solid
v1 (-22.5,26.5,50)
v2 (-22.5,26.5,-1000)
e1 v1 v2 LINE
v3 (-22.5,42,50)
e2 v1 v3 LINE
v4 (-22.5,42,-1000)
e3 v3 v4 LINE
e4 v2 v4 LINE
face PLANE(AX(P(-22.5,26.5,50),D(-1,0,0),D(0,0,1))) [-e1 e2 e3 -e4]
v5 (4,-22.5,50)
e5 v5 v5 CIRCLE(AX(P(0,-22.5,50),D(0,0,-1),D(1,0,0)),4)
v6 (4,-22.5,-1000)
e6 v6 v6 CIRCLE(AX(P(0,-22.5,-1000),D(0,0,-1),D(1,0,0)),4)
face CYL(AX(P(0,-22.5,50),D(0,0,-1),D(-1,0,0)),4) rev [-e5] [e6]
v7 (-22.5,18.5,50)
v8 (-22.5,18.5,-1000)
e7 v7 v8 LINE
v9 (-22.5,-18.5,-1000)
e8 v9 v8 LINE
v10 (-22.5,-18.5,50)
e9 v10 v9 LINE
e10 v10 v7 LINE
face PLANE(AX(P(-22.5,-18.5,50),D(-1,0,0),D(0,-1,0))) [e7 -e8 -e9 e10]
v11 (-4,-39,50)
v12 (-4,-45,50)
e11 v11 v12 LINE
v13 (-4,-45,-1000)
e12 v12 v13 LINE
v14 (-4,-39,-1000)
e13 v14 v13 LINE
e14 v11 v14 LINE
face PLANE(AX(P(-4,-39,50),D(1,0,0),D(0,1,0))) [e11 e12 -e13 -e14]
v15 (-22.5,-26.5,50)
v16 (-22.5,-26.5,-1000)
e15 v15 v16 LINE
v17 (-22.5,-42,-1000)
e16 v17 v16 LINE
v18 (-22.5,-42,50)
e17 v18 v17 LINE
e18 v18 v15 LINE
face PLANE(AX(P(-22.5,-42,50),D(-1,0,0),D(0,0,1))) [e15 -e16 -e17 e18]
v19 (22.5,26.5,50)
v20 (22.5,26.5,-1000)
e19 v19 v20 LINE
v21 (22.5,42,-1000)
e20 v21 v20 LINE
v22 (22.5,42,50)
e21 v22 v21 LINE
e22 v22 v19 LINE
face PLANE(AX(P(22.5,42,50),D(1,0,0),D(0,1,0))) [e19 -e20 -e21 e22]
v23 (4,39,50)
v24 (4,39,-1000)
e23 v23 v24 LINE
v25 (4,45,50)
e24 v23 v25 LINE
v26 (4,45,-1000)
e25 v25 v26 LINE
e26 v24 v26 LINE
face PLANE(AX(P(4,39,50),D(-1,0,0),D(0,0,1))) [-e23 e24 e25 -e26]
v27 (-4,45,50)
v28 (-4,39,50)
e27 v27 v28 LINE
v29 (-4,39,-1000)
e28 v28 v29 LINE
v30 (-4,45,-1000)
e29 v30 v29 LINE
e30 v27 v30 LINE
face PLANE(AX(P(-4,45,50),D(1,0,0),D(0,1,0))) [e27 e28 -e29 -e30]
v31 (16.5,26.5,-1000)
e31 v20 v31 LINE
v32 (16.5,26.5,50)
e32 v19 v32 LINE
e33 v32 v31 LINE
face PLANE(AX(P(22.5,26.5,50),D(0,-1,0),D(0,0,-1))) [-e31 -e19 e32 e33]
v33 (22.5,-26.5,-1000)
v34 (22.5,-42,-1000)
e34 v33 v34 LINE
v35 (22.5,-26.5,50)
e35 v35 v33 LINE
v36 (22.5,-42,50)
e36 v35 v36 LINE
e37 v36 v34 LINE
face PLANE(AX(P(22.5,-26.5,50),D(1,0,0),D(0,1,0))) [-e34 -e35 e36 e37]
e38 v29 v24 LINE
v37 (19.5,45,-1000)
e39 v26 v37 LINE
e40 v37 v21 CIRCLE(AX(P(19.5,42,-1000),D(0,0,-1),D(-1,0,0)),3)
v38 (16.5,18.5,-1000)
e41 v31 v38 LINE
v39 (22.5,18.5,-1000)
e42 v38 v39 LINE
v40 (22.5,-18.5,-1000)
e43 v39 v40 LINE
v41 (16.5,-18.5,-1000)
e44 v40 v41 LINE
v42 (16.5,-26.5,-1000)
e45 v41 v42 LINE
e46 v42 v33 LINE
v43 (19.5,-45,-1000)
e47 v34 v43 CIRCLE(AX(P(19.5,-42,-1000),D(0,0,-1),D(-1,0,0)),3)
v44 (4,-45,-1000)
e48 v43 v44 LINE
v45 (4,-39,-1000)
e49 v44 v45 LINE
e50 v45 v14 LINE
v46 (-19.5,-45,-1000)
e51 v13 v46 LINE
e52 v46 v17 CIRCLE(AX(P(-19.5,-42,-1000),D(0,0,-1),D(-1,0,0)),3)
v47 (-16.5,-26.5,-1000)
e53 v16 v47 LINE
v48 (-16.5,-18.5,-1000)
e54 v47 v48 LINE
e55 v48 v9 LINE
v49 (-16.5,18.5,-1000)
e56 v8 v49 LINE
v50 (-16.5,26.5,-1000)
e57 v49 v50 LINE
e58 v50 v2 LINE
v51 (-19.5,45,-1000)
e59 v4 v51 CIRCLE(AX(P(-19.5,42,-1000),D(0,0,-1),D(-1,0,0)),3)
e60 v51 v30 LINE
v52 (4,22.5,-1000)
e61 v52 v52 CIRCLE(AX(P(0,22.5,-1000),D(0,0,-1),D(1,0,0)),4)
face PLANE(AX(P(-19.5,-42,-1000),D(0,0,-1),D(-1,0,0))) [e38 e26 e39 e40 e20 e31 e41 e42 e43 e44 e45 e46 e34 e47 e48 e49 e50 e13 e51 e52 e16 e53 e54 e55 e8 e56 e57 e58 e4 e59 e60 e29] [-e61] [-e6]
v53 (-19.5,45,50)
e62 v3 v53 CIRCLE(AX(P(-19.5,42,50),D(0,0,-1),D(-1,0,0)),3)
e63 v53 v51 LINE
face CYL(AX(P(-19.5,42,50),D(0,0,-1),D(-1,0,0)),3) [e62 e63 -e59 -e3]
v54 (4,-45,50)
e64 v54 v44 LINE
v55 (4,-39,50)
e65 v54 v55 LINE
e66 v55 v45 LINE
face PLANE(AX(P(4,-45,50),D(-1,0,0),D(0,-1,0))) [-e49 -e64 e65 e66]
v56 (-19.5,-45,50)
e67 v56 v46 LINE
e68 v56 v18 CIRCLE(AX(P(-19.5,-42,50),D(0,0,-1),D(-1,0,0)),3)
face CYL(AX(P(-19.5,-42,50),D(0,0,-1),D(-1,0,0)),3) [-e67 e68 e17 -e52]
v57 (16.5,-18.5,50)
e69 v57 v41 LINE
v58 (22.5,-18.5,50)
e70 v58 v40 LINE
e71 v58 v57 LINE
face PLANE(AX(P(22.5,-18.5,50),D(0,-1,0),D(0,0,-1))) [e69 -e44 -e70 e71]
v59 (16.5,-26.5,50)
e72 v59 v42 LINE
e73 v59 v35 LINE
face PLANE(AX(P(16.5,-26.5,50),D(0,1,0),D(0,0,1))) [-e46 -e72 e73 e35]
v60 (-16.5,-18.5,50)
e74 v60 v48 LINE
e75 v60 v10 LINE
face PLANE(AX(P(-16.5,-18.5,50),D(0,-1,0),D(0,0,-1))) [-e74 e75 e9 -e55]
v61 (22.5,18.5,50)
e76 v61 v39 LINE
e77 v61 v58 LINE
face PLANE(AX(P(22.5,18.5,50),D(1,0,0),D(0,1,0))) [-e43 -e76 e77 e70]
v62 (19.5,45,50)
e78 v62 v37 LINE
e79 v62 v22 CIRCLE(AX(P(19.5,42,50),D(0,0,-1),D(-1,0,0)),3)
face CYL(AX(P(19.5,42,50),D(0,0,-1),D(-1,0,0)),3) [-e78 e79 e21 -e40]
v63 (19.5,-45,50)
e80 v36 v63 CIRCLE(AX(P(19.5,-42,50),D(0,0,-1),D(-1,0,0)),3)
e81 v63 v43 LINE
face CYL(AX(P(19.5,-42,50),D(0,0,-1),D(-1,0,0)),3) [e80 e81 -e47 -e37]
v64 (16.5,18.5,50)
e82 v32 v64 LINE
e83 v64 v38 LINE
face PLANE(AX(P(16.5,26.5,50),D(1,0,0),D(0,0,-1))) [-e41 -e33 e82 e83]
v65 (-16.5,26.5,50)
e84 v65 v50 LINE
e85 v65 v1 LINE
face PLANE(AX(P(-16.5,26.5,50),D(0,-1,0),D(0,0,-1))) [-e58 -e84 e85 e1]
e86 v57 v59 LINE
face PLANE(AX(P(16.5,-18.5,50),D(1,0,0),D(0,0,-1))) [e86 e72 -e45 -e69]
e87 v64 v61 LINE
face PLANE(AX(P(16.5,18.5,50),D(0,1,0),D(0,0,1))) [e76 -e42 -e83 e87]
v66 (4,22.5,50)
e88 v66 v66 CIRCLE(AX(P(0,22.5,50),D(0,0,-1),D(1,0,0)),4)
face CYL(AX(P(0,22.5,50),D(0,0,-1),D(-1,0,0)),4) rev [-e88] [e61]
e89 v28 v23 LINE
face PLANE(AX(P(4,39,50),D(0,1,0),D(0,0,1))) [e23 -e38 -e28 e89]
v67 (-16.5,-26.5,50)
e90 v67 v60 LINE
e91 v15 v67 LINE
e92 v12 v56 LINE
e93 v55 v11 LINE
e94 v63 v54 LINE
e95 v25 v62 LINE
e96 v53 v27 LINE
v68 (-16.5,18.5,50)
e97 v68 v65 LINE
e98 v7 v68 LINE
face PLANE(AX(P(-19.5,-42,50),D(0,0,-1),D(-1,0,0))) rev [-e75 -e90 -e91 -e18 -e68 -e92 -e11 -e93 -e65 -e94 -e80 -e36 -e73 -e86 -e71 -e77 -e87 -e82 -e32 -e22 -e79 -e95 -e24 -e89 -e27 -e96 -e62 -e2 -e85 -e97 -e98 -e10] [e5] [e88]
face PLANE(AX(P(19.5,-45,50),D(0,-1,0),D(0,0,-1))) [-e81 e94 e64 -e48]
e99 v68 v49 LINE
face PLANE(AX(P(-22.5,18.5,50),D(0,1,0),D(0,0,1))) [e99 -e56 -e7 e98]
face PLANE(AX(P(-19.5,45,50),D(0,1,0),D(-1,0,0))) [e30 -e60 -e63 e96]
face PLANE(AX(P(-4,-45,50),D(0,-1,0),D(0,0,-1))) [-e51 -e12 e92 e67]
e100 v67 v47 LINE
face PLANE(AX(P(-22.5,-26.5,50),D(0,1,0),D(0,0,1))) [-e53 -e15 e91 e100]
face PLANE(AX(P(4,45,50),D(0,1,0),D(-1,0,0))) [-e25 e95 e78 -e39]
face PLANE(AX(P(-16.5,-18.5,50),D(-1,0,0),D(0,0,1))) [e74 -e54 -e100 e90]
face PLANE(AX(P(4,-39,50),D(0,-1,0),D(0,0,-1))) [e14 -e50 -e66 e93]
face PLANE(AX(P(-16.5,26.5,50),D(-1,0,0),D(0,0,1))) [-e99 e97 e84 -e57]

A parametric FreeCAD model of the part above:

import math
import FreeCAD as App
import Part
import Sketcher

V = App.Vector
Q = App.Units.Quantity

doc = App.newDocument("Part")
body = doc.addObject("PartDesign::Body", "Body")

# Sketch on XY plane
sketch1 = body.newObject("Sketcher::SketchObject", "Sketch")
sketch1.AttachmentSupport = (doc.getObject("XY_Plane"), [""])
sketch1.MapMode = "FlatFace"
sketch1.AttachmentOffset = App.Placement(V(0, 0, -1000), App.Rotation())
sketch1.addGeometry([
    Part.LineSegment(V(-16.5, 26.5, 0), V(-22.5, 26.5, 0)),  # 0
    Part.LineSegment(V(-22.5, 26.5, 0), V(-22.5, 42, 0)),  # 1
    Part.ArcOfCircle(Part.Circle(V(-19.5, 42, 0), V(0, 0, 1), 3), math.radians(90), math.radians(180)),  # 2
    Part.LineSegment(V(-19.5, 45, 0), V(-4, 45, 0)),  # 3
    Part.LineSegment(V(-4, 45, 0), V(-4, 39, 0)),  # 4
    Part.LineSegment(V(-4, 39, 0), V(4, 39, 0)),  # 5
    Part.LineSegment(V(4, 39, 0), V(4, 45, 0)),  # 6
    Part.LineSegment(V(4, 45, 0), V(19.5, 45, 0)),  # 7
    Part.ArcOfCircle(Part.Circle(V(19.5, 42, 0), V(0, 0, 1), 3), math.radians(0), math.radians(90)),  # 8
    Part.LineSegment(V(22.5, 42, 0), V(22.5, 26.5, 0)),  # 9
    Part.LineSegment(V(22.5, 26.5, 0), V(16.5, 26.5, 0)),  # 10
    Part.LineSegment(V(16.5, 26.5, 0), V(16.5, 18.5, 0)),  # 11
    Part.LineSegment(V(16.5, 18.5, 0), V(22.5, 18.5, 0)),  # 12
    Part.LineSegment(V(22.5, 18.5, 0), V(22.5, -18.5, 0)),  # 13
    Part.LineSegment(V(22.5, -18.5, 0), V(16.5, -18.5, 0)),  # 14
    Part.LineSegment(V(16.5, -18.5, 0), V(16.5, -26.5, 0)),  # 15
    Part.LineSegment(V(16.5, -26.5, 0), V(22.5, -26.5, 0)),  # 16
    Part.LineSegment(V(22.5, -26.5, 0), V(22.5, -42, 0)),  # 17
    Part.ArcOfCircle(Part.Circle(V(19.5, -42, 0), V(0, 0, 1), 3), math.radians(-90), math.radians(0)),  # 18
    Part.LineSegment(V(19.5, -45, 0), V(4, -45, 0)),  # 19
    Part.LineSegment(V(4, -45, 0), V(4, -39, 0)),  # 20
    Part.LineSegment(V(4, -39, 0), V(-4, -39, 0)),  # 21
    Part.LineSegment(V(-4, -39, 0), V(-4, -45, 0)),  # 22
    Part.LineSegment(V(-4, -45, 0), V(-19.5, -45, 0)),  # 23
    Part.ArcOfCircle(Part.Circle(V(-19.5, -42, 0), V(0, 0, 1), 3), math.radians(180), math.radians(270)),  # 24
    Part.LineSegment(V(-22.5, -42, 0), V(-22.5, -26.5, 0)),  # 25
    Part.LineSegment(V(-22.5, -26.5, 0), V(-16.5, -26.5, 0)),  # 26
    Part.LineSegment(V(-16.5, -26.5, 0), V(-16.5, -18.5, 0)),  # 27
    Part.LineSegment(V(-16.5, -18.5, 0), V(-22.5, -18.5, 0)),  # 28
    Part.LineSegment(V(-22.5, -18.5, 0), V(-22.5, 18.5, 0)),  # 29
    Part.LineSegment(V(-22.5, 18.5, 0), V(-16.5, 18.5, 0)),  # 30
    Part.LineSegment(V(-16.5, 18.5, 0), V(-16.5, 26.5, 0)),  # 31
    Part.Circle(V(0, -22.5, 0), V(0, 0, 1), 4),  # 32
    Part.Circle(V(0, 22.5, 0), V(0, 0, 1), 4),  # 33
], False)
sketch1.addConstraint([
    Sketcher.Constraint("Coincident", 0, 2, 1, 1),
    Sketcher.Constraint("Tangent", 1, 2, 2, 2),
    Sketcher.Constraint("Tangent", 2, 1, 3, 1),
    Sketcher.Constraint("Coincident", 3, 2, 4, 1),
    Sketcher.Constraint("Coincident", 4, 2, 5, 1),
    Sketcher.Constraint("Coincident", 5, 2, 6, 1),
    Sketcher.Constraint("Coincident", 6, 2, 7, 1),
    Sketcher.Constraint("Tangent", 7, 2, 8, 2),
    Sketcher.Constraint("Tangent", 8, 1, 9, 1),
    Sketcher.Constraint("Coincident", 9, 2, 10, 1),
    Sketcher.Constraint("Coincident", 10, 2, 11, 1),
    Sketcher.Constraint("Coincident", 11, 2, 12, 1),
    Sketcher.Constraint("Coincident", 12, 2, 13, 1),
    Sketcher.Constraint("Coincident", 13, 2, 14, 1),
    Sketcher.Constraint("Coincident", 14, 2, 15, 1),
    Sketcher.Constraint("Coincident", 15, 2, 16, 1),
    Sketcher.Constraint("Coincident", 16, 2, 17, 1),
    Sketcher.Constraint("Tangent", 17, 2, 18, 2),
    Sketcher.Constraint("Tangent", 18, 1, 19, 1),
    Sketcher.Constraint("Coincident", 19, 2, 20, 1),
    Sketcher.Constraint("Coincident", 20, 2, 21, 1),
    Sketcher.Constraint("Coincident", 21, 2, 22, 1),
    Sketcher.Constraint("Coincident", 22, 2, 23, 1),
    Sketcher.Constraint("Tangent", 23, 2, 24, 2),
    Sketcher.Constraint("Tangent", 24, 1, 25, 1),
    Sketcher.Constraint("Coincident", 25, 2, 26, 1),
    Sketcher.Constraint("Coincident", 26, 2, 27, 1),
    Sketcher.Constraint("Coincident", 27, 2, 28, 1),
    Sketcher.Constraint("Coincident", 28, 2, 29, 1),
    Sketcher.Constraint("Coincident", 29, 2, 30, 1),
    Sketcher.Constraint("Coincident", 30, 2, 31, 1),
    Sketcher.Constraint("Coincident", 31, 2, 0, 1),
    Sketcher.Constraint("Horizontal", 0),
    Sketcher.Constraint("Vertical", 1),
    Sketcher.Constraint("Horizontal", 3),
    Sketcher.Constraint("Vertical", 4),
    Sketcher.Constraint("Horizontal", 5),
    Sketcher.Constraint("Vertical", 6),
    Sketcher.Constraint("Horizontal", 7),
    Sketcher.Constraint("Vertical", 9),
    Sketcher.Constraint("Horizontal", 10),
    Sketcher.Constraint("Vertical", 11),
    Sketcher.Constraint("Horizontal", 12),
    Sketcher.Constraint("Vertical", 13),
    Sketcher.Constraint("Horizontal", 14),
    Sketcher.Constraint("Vertical", 15),
    Sketcher.Constraint("Horizontal", 16),
    Sketcher.Constraint("Vertical", 17),
    Sketcher.Constraint("Horizontal", 19),
    Sketcher.Constraint("Vertical", 20),
    Sketcher.Constraint("Horizontal", 21),
    Sketcher.Constraint("Vertical", 22),
    Sketcher.Constraint("Horizontal", 23),
    Sketcher.Constraint("Vertical", 25),
    Sketcher.Constraint("Horizontal", 26),
    Sketcher.Constraint("Vertical", 27),
    Sketcher.Constraint("Horizontal", 28),
    Sketcher.Constraint("Vertical", 29),
    Sketcher.Constraint("Horizontal", 30),
    Sketcher.Constraint("Vertical", 31),
    Sketcher.Constraint("Equal", 2, 8),
    Sketcher.Constraint("Equal", 8, 18),
    Sketcher.Constraint("Equal", 18, 24),
    Sketcher.Constraint("Equal", 32, 33),
    Sketcher.Constraint("Symmetric", 2, 3, 18, 3, -1, 1),
    Sketcher.Constraint("Symmetric", 8, 3, 24, 3, -1, 1),
    Sketcher.Constraint("Symmetric", 32, 3, 33, 3, -1, 1),
    Sketcher.Constraint("Symmetric", 4, 2, 20, 2, -1, 1),
    Sketcher.Constraint("Symmetric", 10, 2, 26, 2, -1, 1),
    Sketcher.Constraint("Symmetric", 12, 2, 28, 2, -1, 1),
    Sketcher.Constraint("Symmetric", 14, 2, 30, 2, -1, 1),
    Sketcher.Constraint("Symmetric", 2, 3, 8, 3, -2),
    Sketcher.Constraint("Symmetric", 15, 2, 26, 2, -2),
    Sketcher.Constraint("PointOnObject", 32, 3, -2),
    Sketcher.Constraint("Horizontal", 0, 2, 9, 2),
    Sketcher.Constraint("Horizontal", 14, 2, 27, 2),
    Sketcher.Constraint("Vertical", 9, 2, 12, 2),
    Sketcher.Constraint("Vertical", 6, 2, 19, 2),
    Sketcher.Constraint("Vertical", 4, 2, 21, 2),
    Sketcher.Constraint("Equal", 23, 1),
    Sketcher.Constraint("Equal", 30, 4),
    Sketcher.Constraint("Equal", 21, 11),
    Sketcher.Constraint("Diameter", 32, Q("8 mm")),
    Sketcher.Constraint("Radius", 2, Q("3 mm")),
    Sketcher.Constraint("DistanceX", 0, 2, 0, 1, Q("6 mm")),
    Sketcher.Constraint("DistanceX", 5, 1, 5, 2, Q("8 mm")),
    Sketcher.Constraint("DistanceY", 13, 2, 13, 1, Q("37 mm")),
    Sketcher.Constraint("DistanceX", 3, 1, 3, 2, Q("15.5 mm")),
    Sketcher.Constraint("DistanceY", 32, 3, 33, 3, Q("45 mm")),
])
pad1 = body.newObject("PartDesign::Pad", "Pad")
pad1.Profile = sketch1
pad1.Length = 1050

doc.recompute()
